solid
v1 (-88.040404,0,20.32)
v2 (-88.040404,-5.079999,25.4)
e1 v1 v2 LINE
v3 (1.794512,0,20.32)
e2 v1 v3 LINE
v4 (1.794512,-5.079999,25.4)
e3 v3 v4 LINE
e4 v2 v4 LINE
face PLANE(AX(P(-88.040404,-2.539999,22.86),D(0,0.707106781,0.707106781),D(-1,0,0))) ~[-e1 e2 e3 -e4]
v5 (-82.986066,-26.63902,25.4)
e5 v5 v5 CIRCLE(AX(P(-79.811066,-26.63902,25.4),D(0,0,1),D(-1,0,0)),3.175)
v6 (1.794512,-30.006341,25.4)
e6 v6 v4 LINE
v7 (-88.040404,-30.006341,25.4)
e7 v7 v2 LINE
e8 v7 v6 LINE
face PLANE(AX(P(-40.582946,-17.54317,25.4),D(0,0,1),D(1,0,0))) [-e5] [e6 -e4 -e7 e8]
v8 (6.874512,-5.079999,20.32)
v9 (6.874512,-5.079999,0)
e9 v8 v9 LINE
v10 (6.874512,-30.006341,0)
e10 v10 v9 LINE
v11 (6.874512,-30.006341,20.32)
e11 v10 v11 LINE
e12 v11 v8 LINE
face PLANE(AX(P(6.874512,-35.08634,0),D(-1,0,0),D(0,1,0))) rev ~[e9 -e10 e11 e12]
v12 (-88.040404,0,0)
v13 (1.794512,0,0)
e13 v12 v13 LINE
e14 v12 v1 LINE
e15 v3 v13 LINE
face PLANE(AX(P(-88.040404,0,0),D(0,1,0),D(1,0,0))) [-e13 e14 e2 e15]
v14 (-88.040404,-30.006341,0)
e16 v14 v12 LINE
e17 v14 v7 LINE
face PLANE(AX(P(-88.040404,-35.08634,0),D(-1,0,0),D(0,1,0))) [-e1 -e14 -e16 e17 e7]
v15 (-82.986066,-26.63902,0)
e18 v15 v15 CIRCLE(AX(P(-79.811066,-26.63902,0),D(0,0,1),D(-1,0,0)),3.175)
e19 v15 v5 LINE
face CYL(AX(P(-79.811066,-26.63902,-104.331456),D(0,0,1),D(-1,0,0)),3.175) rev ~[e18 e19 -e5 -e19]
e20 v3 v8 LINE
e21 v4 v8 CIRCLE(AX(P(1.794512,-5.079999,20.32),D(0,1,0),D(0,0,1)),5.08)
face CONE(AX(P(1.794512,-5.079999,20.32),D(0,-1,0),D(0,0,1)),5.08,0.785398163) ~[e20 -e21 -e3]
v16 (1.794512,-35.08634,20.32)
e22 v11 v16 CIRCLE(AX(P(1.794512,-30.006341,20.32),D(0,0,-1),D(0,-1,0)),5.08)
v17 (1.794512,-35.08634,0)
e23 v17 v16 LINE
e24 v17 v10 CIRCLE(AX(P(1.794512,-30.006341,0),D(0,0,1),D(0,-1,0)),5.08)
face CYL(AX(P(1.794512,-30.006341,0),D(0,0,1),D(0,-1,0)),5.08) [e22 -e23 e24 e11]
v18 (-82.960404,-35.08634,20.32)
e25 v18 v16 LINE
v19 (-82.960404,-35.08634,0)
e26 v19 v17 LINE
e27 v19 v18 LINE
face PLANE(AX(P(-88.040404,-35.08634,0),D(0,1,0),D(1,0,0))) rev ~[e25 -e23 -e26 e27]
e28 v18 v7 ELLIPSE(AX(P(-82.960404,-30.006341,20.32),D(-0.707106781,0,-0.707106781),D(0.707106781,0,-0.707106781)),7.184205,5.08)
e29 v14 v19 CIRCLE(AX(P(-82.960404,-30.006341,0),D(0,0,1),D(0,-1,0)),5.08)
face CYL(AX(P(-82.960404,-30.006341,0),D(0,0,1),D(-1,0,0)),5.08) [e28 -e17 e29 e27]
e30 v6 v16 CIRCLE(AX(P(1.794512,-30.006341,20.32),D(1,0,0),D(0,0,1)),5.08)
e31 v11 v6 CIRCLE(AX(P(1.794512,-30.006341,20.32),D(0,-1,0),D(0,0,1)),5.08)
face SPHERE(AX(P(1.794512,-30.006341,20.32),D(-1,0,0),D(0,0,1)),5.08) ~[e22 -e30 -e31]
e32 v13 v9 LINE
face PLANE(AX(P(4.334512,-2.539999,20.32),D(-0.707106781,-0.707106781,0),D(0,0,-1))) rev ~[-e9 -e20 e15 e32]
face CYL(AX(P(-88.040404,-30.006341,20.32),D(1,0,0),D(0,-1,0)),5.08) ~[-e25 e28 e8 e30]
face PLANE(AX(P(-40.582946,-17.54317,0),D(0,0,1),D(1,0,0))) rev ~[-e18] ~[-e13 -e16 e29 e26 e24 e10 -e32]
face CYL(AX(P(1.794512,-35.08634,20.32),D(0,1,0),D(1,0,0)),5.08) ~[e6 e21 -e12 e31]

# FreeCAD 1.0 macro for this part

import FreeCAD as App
import Part
import Sketcher
from FreeCAD import Vector
Q = App.Units.Quantity


def edges_at(feature, points):
    """Names of the edges that pass closest to the given points."""
    edges = feature.Shape.Edges
    near = lambda p: min(range(len(edges)), key=lambda i: edges[i].distToShape(Part.Vertex(*p))[0])
    return sorted({f"Edge{near(p) + 1}" for p in points})


def add_polygon(sketch, points):
    """Adds a closed chain of lines whose ends are joined by coincident constraints."""
    first, n = sketch.GeometryCount, len(points)
    for a, b in zip(points, points[1:] + points[:1]):
        sketch.addGeometry(Part.LineSegment(App.Vector(*a, 0), App.Vector(*b, 0)), False)
    for i in range(n):
        sketch.addConstraint(Sketcher.Constraint("Coincident", first + i, 2, first + (i + 1) % n, 1))

doc = App.newDocument("Part")
params = doc.addObject("Spreadsheet::Sheet", "Params")
for row, (alias, value) in enumerate([
    ("pad1_length", "1 in"),
    ("fillet_radius", "0.2 in"),
    ("chamfer_size", "0.2 in"),
    ("sketch2_diameter", "0.25 in"),
    ("hole_diameter", "0.25 in"),
], start=1):
    params.set(f"A{row}", alias)
    params.set(f"B{row}", "=" + value)
    params.setAlias(f"B{row}", alias)

body = doc.addObject("PartDesign::Body", "Body")

# Sketch on XY plane
sketch1 = doc.addObject("Sketcher::SketchObject", "Sketch")
body.addObject(sketch1)
sketch1.AttachmentSupport = (doc.XY_Plane, [""])
sketch1.MapMode = "FlatFace"
add_polygon(sketch1, [(-88, 0), (-88, -35), (7, -35), (7, 0)])  # lines 0-3
sketch1.addConstraint(Sketcher.Constraint("Vertical", 0))
sketch1.addConstraint(Sketcher.Constraint("Horizontal", 1))
sketch1.addConstraint(Sketcher.Constraint("Vertical", 2))
sketch1.addConstraint(Sketcher.Constraint("Horizontal", 3))
sketch1.addConstraint(Sketcher.Constraint("PointOnObject", 2, 2, -1))
sketch1.addConstraint(Sketcher.Constraint("DistanceY", 0, 2, 0, 1, 35.086341))
sketch1.addConstraint(Sketcher.Constraint("DistanceX", 1, 1, 1, 2, 94.914917))
sketch1.addConstraint(Sketcher.Constraint("DistanceX", 0, 2, -1, 1, 88.040404))
pad1 = doc.addObject("PartDesign::Pad", "Pad")
body.addObject(pad1)
pad1.Profile = sketch1
pad1.setExpression("Length", "Params.pad1_length")
doc.recompute()

fillet = doc.addObject("PartDesign::Fillet", "Fillet")
body.addObject(fillet)
fillet.Base = (pad1, edges_at(pad1, [
    (-40.583, -35.086, 25.4),
    (6.875, -17.543, 25.4),
    (6.875, -35.086, 12.7),
    (-88.04, -35.086, 12.7),
]))
fillet.setExpression("Radius", "Params.fillet_radius")
doc.recompute()

chamfer = doc.addObject("PartDesign::Chamfer", "Chamfer")
body.addObject(chamfer)
chamfer.Base = (fillet, edges_at(fillet, [(-43.123, 0, 25.4)]))
chamfer.setExpression("Size", "Params.chamfer_size")

# Sketch on XY plane
sketch2 = doc.addObject("Sketcher::SketchObject", "Sketch001")
body.addObject(sketch2)
sketch2.AttachmentSupport = (doc.XY_Plane, [""])
sketch2.MapMode = "FlatFace"
sketch2.addGeometry(Part.Circle(Vector(-79.8, -26.6, 0), Vector(0, 0, 1), 3.2), False)
sketch2.addConstraint(Sketcher.Constraint("Diameter", 0, Q("0.25 in")))
sketch2.addConstraint(Sketcher.Constraint("DistanceY", 0, 3, -1, 1, 26.63902))
sketch2.addConstraint(Sketcher.Constraint("DistanceX", 0, 3, -1, 1, 79.811066))
sketch2.setExpression("Constraints[0]", "Params.sketch2_diameter")
doc.recompute()
hole = doc.addObject("PartDesign::Hole", "Hole")
body.addObject(hole)
hole.Profile = sketch2
hole.ThreadType = "None"
hole.setExpression("Diameter", "Params.hole_diameter")
hole.DepthType = "ThroughAll"
hole.Reversed = True

doc.recompute()
